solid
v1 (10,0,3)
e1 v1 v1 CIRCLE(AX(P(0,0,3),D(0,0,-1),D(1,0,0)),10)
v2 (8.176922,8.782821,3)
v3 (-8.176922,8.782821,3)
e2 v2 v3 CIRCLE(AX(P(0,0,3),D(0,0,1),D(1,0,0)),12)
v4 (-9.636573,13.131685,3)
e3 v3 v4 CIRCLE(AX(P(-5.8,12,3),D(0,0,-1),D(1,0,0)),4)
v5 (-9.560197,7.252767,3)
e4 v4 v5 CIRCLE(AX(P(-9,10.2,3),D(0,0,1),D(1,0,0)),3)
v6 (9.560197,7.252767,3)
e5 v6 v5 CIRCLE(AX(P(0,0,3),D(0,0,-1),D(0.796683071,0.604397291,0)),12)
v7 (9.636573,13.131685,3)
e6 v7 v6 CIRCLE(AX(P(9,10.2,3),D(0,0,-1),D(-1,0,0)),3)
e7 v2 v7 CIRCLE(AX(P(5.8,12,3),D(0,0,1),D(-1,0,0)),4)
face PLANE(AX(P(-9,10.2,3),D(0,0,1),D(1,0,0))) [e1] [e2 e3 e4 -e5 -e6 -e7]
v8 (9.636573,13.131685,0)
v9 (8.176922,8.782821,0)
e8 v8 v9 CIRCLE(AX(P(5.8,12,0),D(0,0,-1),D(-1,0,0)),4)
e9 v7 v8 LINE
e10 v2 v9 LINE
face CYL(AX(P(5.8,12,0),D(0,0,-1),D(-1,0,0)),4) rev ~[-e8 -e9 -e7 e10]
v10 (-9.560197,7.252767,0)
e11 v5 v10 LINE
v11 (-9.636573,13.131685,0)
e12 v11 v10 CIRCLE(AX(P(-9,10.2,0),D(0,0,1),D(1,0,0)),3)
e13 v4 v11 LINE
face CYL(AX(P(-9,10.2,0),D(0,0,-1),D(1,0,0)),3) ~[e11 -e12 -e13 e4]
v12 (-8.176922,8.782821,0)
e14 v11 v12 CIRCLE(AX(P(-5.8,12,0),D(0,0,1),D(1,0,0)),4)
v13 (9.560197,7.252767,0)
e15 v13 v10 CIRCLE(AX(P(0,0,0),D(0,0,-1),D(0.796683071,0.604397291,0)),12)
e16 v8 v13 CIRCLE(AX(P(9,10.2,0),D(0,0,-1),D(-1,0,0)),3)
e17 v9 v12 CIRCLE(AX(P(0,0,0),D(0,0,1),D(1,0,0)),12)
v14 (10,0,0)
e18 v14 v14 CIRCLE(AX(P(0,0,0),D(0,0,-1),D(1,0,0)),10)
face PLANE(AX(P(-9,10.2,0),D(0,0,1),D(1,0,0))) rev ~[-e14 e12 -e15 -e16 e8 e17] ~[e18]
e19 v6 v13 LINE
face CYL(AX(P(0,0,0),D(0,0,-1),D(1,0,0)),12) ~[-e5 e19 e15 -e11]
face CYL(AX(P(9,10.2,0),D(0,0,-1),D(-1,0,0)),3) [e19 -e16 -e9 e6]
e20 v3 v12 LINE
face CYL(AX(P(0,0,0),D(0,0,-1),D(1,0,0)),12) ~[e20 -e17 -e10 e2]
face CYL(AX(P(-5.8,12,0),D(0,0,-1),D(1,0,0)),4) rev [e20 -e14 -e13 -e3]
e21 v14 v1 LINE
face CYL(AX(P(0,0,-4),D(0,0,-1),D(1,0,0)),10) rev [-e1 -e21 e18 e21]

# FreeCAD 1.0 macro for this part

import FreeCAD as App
import Part
import Sketcher
from FreeCAD import Vector
Q = App.Units.Quantity

doc = App.newDocument("Part")
params = doc.addObject("Spreadsheet::Sheet", "Params")
for row, (alias, value) in enumerate([
    ("sketch1_diameter", "8 mm"),
    ("pad1_length", "10 mm"),
    ("sketch2_diameter", "6 mm"),
    ("pad2_length", "3 mm"),
    ("sketch3_diameter", "20 mm"),
    ("pad3_length", "10 mm"),
    ("sketch4_diameter", "24 mm"),
    ("pad4_length", "3 mm"),
], start=1):
    params.set(f"A{row}", alias)
    params.set(f"B{row}", "=" + value)
    params.setAlias(f"B{row}", alias)

body = doc.addObject("PartDesign::Body", "Body")

# Sketch on XY plane
sketch1 = body.newObject("Sketcher::SketchObject", "Sketch")
sketch1.AttachmentSupport = (doc.getObject("XY_Plane"), [""])
sketch1.MapMode = "FlatFace"
sketch1.addGeometry(Part.Circle(Vector(3.2, 1.8, 0), Vector(0, 0, 1), 4), False)
sketch1.addConstraint([
    Sketcher.Constraint("Diameter", 0, Q("8 mm")),
    Sketcher.Constraint("DistanceX", -1, 1, 0, 3, Q("3.2 mm")),
    Sketcher.Constraint("DistanceY", -1, 1, 0, 3, Q("1.8 mm")),
])
sketch1.setExpression("Constraints[0]", "Params.sketch1_diameter")
pad1 = body.newObject("PartDesign::Pad", "Pad")
pad1.Profile = sketch1
pad1.setExpression("Length", "Params.pad1_length")
body2 = doc.addObject("PartDesign::Body", "Body001")

# Sketch on XY plane
sketch2 = body2.newObject("Sketcher::SketchObject", "Sketch001")
sketch2.AttachmentSupport = (doc.getObject("XY_Plane001"), [""])
sketch2.MapMode = "FlatFace"
sketch2.addGeometry(Part.Circle(Vector(0, 0, 0), Vector(0, 0, 1), 3), False)
sketch2.addConstraint([
    Sketcher.Constraint("Coincident", 0, 3, -1, 1),
    Sketcher.Constraint("Diameter", 0, Q("6 mm")),
])
sketch2.setExpression("Constraints[1]", "Params.sketch2_diameter")
pad2 = body2.newObject("PartDesign::Pad", "Pad001")
pad2.Profile = sketch2
pad2.setExpression("Length", "Params.pad2_length")
doc.recompute()

boolean = body2.newObject("PartDesign::Boolean", "Boolean")
boolean.Type = "Cut"
boolean.addObjects([body])
body3 = doc.addObject("PartDesign::Body", "Body002")
doc.recompute()

body2.Placement = App.Placement(Vector(-9, 10.2, 0), App.Rotation(Vector(0, 0, 1), 0))
boolean2 = body3.newObject("PartDesign::Boolean", "Boolean001")
boolean2.Type = "Fuse"
boolean2.addObjects([body2])
body4 = doc.addObject("PartDesign::Body", "Body003")
body4.AllowCompound = True
doc.recompute()

mirroring = doc.addObject("Part::Mirroring", "Mirroring")
mirroring.Source = body3
mirroring.Base = Vector(0, 0, 0)
mirroring.Normal = Vector(1, 0, 0)
body4.BaseFeature = mirroring
doc.recompute()

boolean3 = body4.newObject("PartDesign::Boolean", "Boolean002")
boolean3.Type = "Fuse"
boolean3.addObjects([body3])
body5 = doc.addObject("PartDesign::Body", "Body004")

# Sketch on XY plane
sketch3 = body5.newObject("Sketcher::SketchObject", "Sketch002")
sketch3.AttachmentSupport = (doc.getObject("XY_Plane004"), [""])
sketch3.MapMode = "FlatFace"
sketch3.AttachmentOffset = App.Placement(Vector(0, 0, -4), App.Rotation())
sketch3.addGeometry(Part.Circle(Vector(0, 0, 0), Vector(0, 0, 1), 10), False)
sketch3.addConstraint([
    Sketcher.Constraint("Coincident", 0, 3, -1, 1),
    Sketcher.Constraint("Diameter", 0, Q("20 mm")),
])
sketch3.setExpression("Constraints[1]", "Params.sketch3_diameter")
pad3 = body5.newObject("PartDesign::Pad", "Pad002")
pad3.Profile = sketch3
pad3.setExpression("Length", "Params.pad3_length")
body6 = doc.addObject("PartDesign::Body", "Body005")

# Sketch on XY plane
sketch4 = body6.newObject("Sketcher::SketchObject", "Sketch003")
sketch4.AttachmentSupport = (doc.getObject("XY_Plane005"), [""])
sketch4.MapMode = "FlatFace"
sketch4.addGeometry(Part.Circle(Vector(0, 0, 0), Vector(0, 0, 1), 12), False)
sketch4.addConstraint([
    Sketcher.Constraint("Coincident", 0, 3, -1, 1),
    Sketcher.Constraint("Diameter", 0, Q("24 mm")),
])
sketch4.setExpression("Constraints[1]", "Params.sketch4_diameter")
pad4 = body6.newObject("PartDesign::Pad", "Pad003")
pad4.Profile = sketch4
pad4.setExpression("Length", "Params.pad4_length")
doc.recompute()

boolean4 = body6.newObject("PartDesign::Boolean", "Boolean003")
boolean4.Type = "Cut"
boolean4.addObjects([body5])
doc.recompute()

boolean5 = body6.newObject("PartDesign::Boolean", "Boolean004")
boolean5.Type = "Fuse"
boolean5.addObjects([body4])
mirroring.Visibility = False

doc.recompute()
